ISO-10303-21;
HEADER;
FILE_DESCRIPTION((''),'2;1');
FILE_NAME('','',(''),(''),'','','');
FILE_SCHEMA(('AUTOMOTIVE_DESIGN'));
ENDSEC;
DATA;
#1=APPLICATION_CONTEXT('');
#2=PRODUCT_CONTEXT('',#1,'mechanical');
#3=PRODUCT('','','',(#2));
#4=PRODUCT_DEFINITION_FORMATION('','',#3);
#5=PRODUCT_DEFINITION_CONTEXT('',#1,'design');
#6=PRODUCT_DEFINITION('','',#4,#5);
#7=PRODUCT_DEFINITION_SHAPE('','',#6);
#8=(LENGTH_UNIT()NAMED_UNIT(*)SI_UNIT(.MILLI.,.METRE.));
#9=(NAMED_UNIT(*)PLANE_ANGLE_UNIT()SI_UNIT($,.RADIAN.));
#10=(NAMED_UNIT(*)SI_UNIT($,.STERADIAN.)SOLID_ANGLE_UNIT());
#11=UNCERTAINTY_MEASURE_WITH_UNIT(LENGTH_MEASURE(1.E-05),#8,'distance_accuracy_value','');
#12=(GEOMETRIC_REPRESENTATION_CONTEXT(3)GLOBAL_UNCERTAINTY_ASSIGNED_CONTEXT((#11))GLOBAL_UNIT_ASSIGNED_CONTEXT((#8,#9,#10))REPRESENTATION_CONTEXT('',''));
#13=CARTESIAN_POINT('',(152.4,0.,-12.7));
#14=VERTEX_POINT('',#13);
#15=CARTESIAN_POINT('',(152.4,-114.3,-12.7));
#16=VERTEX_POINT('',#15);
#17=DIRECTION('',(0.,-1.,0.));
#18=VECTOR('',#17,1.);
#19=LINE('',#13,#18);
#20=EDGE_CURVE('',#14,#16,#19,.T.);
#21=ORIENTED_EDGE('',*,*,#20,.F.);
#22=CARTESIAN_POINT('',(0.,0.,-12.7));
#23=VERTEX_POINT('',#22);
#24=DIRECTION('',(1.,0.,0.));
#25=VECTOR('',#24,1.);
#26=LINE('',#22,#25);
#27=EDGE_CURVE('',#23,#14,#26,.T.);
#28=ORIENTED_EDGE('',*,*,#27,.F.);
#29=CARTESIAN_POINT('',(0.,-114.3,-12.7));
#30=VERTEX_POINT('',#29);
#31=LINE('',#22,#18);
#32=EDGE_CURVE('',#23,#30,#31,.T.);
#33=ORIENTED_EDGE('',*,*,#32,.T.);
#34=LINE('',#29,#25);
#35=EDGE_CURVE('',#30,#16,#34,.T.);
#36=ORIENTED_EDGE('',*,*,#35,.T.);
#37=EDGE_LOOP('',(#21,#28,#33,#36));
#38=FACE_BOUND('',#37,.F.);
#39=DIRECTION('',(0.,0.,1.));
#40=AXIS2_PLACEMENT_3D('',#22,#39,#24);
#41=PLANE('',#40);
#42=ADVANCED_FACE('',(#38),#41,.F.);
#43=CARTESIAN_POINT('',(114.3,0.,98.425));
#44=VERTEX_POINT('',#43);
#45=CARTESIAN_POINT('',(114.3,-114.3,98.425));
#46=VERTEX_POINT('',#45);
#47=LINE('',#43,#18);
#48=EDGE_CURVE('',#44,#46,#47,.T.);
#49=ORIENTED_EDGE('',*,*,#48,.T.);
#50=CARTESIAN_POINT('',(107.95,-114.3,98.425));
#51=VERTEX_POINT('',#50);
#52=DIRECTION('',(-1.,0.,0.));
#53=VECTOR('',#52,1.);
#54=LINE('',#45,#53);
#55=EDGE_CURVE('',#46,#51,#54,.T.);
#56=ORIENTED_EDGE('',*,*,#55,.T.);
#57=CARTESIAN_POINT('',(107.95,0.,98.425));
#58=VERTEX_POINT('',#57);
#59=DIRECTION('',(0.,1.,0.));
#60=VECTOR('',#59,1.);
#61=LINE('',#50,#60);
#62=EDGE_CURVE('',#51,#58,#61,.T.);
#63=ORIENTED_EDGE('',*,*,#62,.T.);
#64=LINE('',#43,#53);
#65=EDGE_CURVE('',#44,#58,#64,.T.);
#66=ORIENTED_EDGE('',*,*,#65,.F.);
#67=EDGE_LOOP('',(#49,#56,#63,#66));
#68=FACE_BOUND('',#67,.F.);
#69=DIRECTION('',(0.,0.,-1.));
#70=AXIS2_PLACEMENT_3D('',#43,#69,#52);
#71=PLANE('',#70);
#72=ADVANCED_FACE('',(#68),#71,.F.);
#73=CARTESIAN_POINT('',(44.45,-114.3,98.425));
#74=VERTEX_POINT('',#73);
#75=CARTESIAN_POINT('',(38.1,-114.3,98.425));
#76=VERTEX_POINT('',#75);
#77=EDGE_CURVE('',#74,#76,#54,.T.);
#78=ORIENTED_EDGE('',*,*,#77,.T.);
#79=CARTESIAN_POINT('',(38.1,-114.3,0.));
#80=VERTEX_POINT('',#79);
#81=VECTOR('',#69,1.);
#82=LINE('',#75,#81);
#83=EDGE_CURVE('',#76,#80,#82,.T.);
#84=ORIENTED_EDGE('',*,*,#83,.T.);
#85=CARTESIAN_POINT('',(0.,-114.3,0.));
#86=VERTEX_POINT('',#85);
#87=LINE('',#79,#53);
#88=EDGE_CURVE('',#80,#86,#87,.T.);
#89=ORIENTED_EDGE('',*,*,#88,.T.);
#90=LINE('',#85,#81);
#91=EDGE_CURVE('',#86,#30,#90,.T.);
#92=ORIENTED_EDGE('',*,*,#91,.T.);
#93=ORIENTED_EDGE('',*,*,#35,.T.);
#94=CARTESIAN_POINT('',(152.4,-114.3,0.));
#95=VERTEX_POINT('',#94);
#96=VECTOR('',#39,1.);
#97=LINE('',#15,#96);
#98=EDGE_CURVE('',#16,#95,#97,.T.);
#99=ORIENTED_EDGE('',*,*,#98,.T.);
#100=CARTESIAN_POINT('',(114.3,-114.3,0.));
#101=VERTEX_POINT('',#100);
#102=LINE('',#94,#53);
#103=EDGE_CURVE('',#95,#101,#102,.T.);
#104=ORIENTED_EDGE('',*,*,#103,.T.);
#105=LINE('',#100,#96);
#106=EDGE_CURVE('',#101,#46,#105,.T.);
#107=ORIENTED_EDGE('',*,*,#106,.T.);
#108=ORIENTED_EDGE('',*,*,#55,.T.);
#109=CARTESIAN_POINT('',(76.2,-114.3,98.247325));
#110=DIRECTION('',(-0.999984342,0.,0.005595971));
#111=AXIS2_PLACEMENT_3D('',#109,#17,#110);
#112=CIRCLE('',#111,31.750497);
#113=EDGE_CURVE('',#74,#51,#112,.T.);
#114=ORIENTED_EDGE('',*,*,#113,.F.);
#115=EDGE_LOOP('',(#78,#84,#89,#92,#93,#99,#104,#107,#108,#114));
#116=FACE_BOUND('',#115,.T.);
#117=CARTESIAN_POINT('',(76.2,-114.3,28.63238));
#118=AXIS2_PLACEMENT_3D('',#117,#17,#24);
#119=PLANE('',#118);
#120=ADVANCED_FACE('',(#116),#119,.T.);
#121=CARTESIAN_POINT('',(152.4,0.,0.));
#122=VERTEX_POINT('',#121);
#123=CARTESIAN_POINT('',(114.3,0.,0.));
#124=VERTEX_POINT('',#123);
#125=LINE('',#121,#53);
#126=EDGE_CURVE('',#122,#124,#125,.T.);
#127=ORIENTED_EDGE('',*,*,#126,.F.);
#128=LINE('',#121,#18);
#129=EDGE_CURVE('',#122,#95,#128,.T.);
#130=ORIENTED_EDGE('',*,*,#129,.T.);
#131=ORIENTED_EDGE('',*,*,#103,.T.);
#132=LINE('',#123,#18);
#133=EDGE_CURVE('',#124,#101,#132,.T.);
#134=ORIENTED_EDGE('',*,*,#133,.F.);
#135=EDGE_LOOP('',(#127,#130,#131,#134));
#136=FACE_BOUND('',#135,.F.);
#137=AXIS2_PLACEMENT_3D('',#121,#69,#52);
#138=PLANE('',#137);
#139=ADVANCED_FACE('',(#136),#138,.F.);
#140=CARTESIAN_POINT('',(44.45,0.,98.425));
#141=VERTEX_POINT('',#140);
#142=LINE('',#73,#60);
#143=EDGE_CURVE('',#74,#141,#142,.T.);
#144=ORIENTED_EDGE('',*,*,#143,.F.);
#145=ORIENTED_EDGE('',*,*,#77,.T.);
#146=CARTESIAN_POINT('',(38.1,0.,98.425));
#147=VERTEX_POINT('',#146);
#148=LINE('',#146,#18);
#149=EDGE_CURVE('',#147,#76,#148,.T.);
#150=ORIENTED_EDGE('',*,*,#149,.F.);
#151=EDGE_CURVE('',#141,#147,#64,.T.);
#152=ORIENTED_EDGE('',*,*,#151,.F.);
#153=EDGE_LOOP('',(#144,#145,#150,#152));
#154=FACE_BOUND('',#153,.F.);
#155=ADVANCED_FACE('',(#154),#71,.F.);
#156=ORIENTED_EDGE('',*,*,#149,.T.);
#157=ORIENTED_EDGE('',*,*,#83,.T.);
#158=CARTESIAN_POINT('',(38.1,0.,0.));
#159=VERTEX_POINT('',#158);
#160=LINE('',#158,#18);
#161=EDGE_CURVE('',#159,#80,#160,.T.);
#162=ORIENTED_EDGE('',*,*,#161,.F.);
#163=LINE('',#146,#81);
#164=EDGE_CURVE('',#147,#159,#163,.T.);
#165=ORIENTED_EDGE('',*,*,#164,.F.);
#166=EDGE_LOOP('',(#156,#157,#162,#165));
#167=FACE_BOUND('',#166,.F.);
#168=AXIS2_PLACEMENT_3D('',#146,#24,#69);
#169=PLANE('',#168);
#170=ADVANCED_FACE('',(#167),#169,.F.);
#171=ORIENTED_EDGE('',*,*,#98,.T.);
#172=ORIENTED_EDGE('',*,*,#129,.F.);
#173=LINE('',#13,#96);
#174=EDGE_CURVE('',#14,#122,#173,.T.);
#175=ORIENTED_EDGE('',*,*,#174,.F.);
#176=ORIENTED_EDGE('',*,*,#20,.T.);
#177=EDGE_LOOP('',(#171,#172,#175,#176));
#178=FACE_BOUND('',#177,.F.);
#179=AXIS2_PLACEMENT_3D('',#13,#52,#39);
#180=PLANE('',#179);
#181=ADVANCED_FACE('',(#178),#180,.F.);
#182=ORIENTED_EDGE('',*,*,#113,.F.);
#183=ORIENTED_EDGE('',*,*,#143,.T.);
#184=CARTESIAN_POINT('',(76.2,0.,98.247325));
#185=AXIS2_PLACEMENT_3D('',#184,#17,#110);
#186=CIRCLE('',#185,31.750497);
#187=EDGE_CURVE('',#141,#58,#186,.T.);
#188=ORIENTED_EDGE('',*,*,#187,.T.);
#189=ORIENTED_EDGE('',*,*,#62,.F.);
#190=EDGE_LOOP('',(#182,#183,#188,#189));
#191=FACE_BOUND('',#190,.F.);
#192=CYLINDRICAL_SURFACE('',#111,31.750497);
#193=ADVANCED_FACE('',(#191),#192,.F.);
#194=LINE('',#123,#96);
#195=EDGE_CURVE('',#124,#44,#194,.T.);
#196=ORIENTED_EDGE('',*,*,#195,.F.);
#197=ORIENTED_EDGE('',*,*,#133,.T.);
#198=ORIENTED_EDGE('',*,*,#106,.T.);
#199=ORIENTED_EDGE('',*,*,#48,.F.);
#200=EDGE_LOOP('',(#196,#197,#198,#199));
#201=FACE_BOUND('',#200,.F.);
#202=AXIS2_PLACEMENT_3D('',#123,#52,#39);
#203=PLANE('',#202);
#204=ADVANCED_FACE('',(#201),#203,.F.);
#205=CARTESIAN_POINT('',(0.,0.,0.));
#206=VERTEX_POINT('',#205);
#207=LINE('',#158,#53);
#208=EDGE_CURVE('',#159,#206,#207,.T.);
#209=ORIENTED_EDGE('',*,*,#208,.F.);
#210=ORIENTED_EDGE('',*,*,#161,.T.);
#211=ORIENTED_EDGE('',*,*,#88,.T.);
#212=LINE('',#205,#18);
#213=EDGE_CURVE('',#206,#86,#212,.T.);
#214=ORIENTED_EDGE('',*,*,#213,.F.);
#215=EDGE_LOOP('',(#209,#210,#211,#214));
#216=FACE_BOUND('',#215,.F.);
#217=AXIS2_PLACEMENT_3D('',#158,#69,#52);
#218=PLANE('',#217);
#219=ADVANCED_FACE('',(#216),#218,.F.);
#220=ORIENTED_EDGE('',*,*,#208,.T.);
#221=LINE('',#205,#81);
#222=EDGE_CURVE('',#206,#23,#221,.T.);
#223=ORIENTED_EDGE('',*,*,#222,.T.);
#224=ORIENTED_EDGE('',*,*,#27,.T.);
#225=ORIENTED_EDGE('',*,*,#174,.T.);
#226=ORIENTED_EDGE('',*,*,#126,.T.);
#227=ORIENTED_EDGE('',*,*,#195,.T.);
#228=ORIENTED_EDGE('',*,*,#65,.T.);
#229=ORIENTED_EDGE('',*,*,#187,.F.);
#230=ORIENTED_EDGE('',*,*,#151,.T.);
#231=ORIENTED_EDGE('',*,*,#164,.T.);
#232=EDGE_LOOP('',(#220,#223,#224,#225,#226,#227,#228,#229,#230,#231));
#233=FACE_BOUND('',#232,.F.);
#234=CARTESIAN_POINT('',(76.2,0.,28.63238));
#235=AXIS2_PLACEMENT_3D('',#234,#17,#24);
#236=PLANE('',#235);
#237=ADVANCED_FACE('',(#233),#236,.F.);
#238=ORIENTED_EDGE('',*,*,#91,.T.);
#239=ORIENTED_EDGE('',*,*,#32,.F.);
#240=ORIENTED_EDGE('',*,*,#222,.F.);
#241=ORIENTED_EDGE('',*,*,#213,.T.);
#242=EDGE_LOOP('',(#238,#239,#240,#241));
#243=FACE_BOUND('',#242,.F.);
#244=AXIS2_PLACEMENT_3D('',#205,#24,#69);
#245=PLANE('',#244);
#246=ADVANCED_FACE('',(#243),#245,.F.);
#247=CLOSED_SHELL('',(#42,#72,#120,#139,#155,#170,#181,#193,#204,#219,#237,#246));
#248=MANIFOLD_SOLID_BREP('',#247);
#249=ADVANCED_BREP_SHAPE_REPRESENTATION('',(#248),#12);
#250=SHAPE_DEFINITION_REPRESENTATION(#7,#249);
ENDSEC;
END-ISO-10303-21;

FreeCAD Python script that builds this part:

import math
import FreeCAD as App
import Part
import Sketcher

V = App.Vector
Q = App.Units.Quantity

doc = App.newDocument("Part")
body = doc.addObject("PartDesign::Body", "Body")

# Sketch on XZ plane
sketch1 = body.newObject("Sketcher::SketchObject", "Sketch")
sketch1.AttachmentSupport = (doc.getObject("XZ_Plane"), [""])
sketch1.MapMode = "FlatFace"
sketch1.addGeometry([
    Part.LineSegment(V(38.1, 0, 0), V(0, 0, 0)),  # 0
    Part.LineSegment(V(0, 0, 0), V(0, -12.7, 0)),  # 1
    Part.LineSegment(V(0, -12.7, 0), V(152.4, -12.7, 0)),  # 2
    Part.LineSegment(V(152.4, -12.7, 0), V(152.4, 0, 0)),  # 3
    Part.LineSegment(V(152.4, 0, 0), V(114.3, 0, 0)),  # 4
    Part.LineSegment(V(114.3, 0, 0), V(114.3, 98.425, 0)),  # 5
    Part.LineSegment(V(114.3, 98.425, 0), V(38.1, 98.425, 0)),  # 6
    Part.LineSegment(V(38.1, 98.425, 0), V(38.1, 0, 0)),  # 7
], False)
sketch1.addConstraint([
    Sketcher.Constraint("Coincident", 0, 2, 1, 1),
    Sketcher.Constraint("Coincident", 1, 2, 2, 1),
    Sketcher.Constraint("Coincident", 2, 2, 3, 1),
    Sketcher.Constraint("Coincident", 3, 2, 4, 1),
    Sketcher.Constraint("Coincident", 4, 2, 5, 1),
    Sketcher.Constraint("Coincident", 5, 2, 6, 1),
    Sketcher.Constraint("Coincident", 6, 2, 7, 1),
    Sketcher.Constraint("Coincident", 7, 2, 0, 1),
    Sketcher.Constraint("Horizontal", 0),
    Sketcher.Constraint("Vertical", 1),
    Sketcher.Constraint("Horizontal", 2),
    Sketcher.Constraint("Vertical", 3),
    Sketcher.Constraint("Horizontal", 4),
    Sketcher.Constraint("Vertical", 5),
    Sketcher.Constraint("Horizontal", 6),
    Sketcher.Constraint("Vertical", 7),
    Sketcher.Constraint("Coincident", 0, 2, -1, 1),
    Sketcher.Constraint("PointOnObject", 3, 2, -1),
    Sketcher.Constraint("Equal", 0, 4),
    Sketcher.Constraint("DistanceX", 2, 1, 2, 2, Q("6 in")),
    Sketcher.Constraint("DistanceX", 6, 2, 6, 1, Q("3 in")),
    Sketcher.Constraint("DistanceY", 1, 2, 1, 1, Q("0.5 in")),
    Sketcher.Constraint("DistanceY", 5, 1, 5, 2, Q("3.875 in")),
])
pad1 = body.newObject("PartDesign::Pad", "Pad")
pad1.Profile = sketch1
pad1.Length = Q("4.5 in")

# Sketch on XZ plane
sketch2 = body.newObject("Sketcher::SketchObject", "Sketch001")
sketch2.AttachmentSupport = (doc.getObject("XZ_Plane"), [""])
sketch2.MapMode = "FlatFace"
sketch2.AttachmentOffset = App.Placement(V(0, 0, 4.5 * 25.4), App.Rotation())
sketch2.addGeometry([
    Part.LineSegment(V(107.95, 98.425, 0), V(44.45, 98.425, 0)),
    Part.ArcOfCircle(Part.Circle(V(76.2, 153.417612, 0), V(0, 0, 1), 63.499999), math.radians(-120), math.radians(-60)),
], False)
sketch2.addConstraint([
    Sketcher.Constraint("Coincident", 0, 1, 1, 2),
    Sketcher.Constraint("Coincident", 1, 1, 0, 2),
    Sketcher.Constraint("Horizontal", 0),
    Sketcher.Constraint("Radius", 1, Q("2.5 in")),
    Sketcher.Constraint("DistanceX", 0, 2, 0, 1, Q("2.5 in")),
    Sketcher.Constraint("DistanceX", -1, 1, 1, 3, Q("3 in")),
    Sketcher.Constraint("DistanceY", -1, 1, 0, 1, Q("3.875 in")),
])
pocket1 = body.newObject("PartDesign::Pocket", "Pocket")
pocket1.Profile = sketch2
pocket1.Length = Q("4.5 in")

# Sketch on XZ plane
sketch3 = body.newObject("Sketcher::SketchObject", "Sketch002")
sketch3.AttachmentSupport = (doc.getObject("XZ_Plane"), [""])
sketch3.MapMode = "FlatFace"
sketch3.AttachmentOffset = App.Placement(V(0, 0, 4.5 * 25.4), App.Rotation())
sketch3.addGeometry([
    Part.ArcOfCircle(Part.Circle(V(76.2, 153.417612, 0), V(0, 0, 1), 63.499999), math.radians(-120), math.radians(-60)),
    Part.ArcOfCircle(Part.Circle(V(76.2, 98.247325, 0), V(0, 0, 1), 31.750497), math.radians(179.679373), math.radians(360.320627)),
], False)
sketch3.addConstraint([
    Sketcher.Constraint("Coincident", 0, 1, 1, 1),
    Sketcher.Constraint("Coincident", 1, 2, 0, 2),
    Sketcher.Constraint("Horizontal", 0, 1, 1, 2),
    Sketcher.Constraint("Radius", 0, Q("2.5 in")),
    Sketcher.Constraint("DistanceX", -1, 1, 0, 3, Q("3 in")),
    Sketcher.Constraint("DistanceX", 0, 1, 1, 2, Q("2.5 in")),
    Sketcher.Constraint("DistanceY", -1, 1, 0, 1, Q("3.875 in")),
    Sketcher.Constraint("Radius", 1, 31.750497),
])
pocket2 = body.newObject("PartDesign::Pocket", "Pocket001")
pocket2.Profile = sketch3
pocket2.Type = "ThroughAll"

doc.recompute()
